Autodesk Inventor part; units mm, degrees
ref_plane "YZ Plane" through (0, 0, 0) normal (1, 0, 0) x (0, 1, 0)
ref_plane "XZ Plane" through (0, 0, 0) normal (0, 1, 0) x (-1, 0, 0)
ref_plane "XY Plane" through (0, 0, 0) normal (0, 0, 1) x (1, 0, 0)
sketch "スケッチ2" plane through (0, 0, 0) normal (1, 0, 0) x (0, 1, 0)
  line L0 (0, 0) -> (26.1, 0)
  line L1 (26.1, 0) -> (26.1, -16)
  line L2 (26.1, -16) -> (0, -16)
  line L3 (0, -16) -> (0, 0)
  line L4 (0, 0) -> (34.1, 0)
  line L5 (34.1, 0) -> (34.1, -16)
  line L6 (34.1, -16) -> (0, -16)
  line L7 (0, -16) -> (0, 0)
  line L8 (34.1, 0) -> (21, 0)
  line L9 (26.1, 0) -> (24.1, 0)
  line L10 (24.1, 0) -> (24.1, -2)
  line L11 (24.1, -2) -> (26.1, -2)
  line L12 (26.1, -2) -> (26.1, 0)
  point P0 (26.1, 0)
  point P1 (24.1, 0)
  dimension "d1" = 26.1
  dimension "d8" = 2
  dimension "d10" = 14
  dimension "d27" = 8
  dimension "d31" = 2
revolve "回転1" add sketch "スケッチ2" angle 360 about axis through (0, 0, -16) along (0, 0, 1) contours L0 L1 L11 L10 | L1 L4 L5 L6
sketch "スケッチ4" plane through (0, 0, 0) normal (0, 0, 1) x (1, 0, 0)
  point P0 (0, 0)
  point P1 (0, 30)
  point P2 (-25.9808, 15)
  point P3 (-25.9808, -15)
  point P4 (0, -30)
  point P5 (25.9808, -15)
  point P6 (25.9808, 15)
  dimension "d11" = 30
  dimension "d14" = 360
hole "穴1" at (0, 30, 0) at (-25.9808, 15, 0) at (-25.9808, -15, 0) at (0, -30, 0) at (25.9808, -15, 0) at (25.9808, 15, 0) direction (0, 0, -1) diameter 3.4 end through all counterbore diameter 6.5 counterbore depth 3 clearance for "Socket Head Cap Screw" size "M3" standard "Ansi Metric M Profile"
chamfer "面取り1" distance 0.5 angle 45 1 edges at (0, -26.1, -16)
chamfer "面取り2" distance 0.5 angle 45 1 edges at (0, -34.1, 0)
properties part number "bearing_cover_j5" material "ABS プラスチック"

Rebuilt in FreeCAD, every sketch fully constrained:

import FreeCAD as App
import Part
import Sketcher
from FreeCAD import Vector
Q = App.Units.Quantity


def edges_at(feature, points):
    """Names of the edges that pass closest to the given points."""
    edges = feature.Shape.Edges
    near = lambda p: min(range(len(edges)), key=lambda i: edges[i].distToShape(Part.Vertex(*p))[0])
    return sorted({f"Edge{near(p) + 1}" for p in points})

doc = App.newDocument("Part")
body = doc.addObject("PartDesign::Body", "Body")

# Sketch on YZ plane
sketch1 = body.newObject("Sketcher::SketchObject", "Sketch")
sketch1.AttachmentSupport = (doc.getObject("YZ_Plane"), [""])
sketch1.MapMode = "FlatFace"
sketch1.addGeometry(Part.LineSegment(Vector(24.1, 0, 0), Vector(24.1, -2, 0)), False)
sketch1.addGeometry(Part.LineSegment(Vector(24.1, -2, 0), Vector(26.1, -2, 0)), False)
sketch1.addGeometry(Part.LineSegment(Vector(26.1, -2, 0), Vector(26.1, -16, 0)), False)
sketch1.addGeometry(Part.LineSegment(Vector(26.1, -16, 0), Vector(34.1, -16, 0)), False)
sketch1.addGeometry(Part.LineSegment(Vector(34.1, -16, 0), Vector(34.1, 0, 0)), False)
sketch1.addGeometry(Part.LineSegment(Vector(34.1, 0, 0), Vector(24.1, 0, 0)), False)
sketch1.addConstraint(Sketcher.Constraint("Coincident", 0, 2, 1, 1))
sketch1.addConstraint(Sketcher.Constraint("Coincident", 1, 2, 2, 1))
sketch1.addConstraint(Sketcher.Constraint("Coincident", 2, 2, 3, 1))
sketch1.addConstraint(Sketcher.Constraint("Coincident", 3, 2, 4, 1))
sketch1.addConstraint(Sketcher.Constraint("Coincident", 4, 2, 5, 1))
sketch1.addConstraint(Sketcher.Constraint("Coincident", 5, 2, 0, 1))
sketch1.addConstraint(Sketcher.Constraint("Vertical", 0))
sketch1.addConstraint(Sketcher.Constraint("Horizontal", 1))
sketch1.addConstraint(Sketcher.Constraint("Vertical", 2))
sketch1.addConstraint(Sketcher.Constraint("Horizontal", 3))
sketch1.addConstraint(Sketcher.Constraint("Vertical", 4))
sketch1.addConstraint(Sketcher.Constraint("Horizontal", 5))
sketch1.addConstraint(Sketcher.Constraint("PointOnObject", 4, 2, -1))
sketch1.addConstraint(Sketcher.Constraint("Equal", 1, 0))
sketch1.addConstraint(Sketcher.Constraint("DistanceX", 1, 1, 1, 2, Q("2 mm")))
sketch1.addConstraint(Sketcher.Constraint("DistanceX", 3, 1, 3, 2, Q("8 mm")))
sketch1.addConstraint(Sketcher.Constraint("DistanceY", 2, 2, 2, 1, Q("14 mm")))
sketch1.addConstraint(Sketcher.Constraint("DistanceX", -1, 1, 1, 2, Q("26.1 mm")))
revolution = body.newObject("PartDesign::Revolution", "Revolution")
revolution.Profile = sketch1
revolution.ReferenceAxis = (sketch1, ["V_Axis"])
revolution.Angle = 360

# Sketch on XY plane
sketch2 = body.newObject("Sketcher::SketchObject", "Sketch001")
sketch2.AttachmentSupport = (doc.getObject("XY_Plane"), [""])
sketch2.MapMode = "FlatFace"
sketch2.addGeometry(Part.Circle(Vector(0, 30, 0), Vector(0, 0, 1), 1.7), False)
sketch2.addGeometry(Part.Circle(Vector(-26, 15, 0), Vector(0, 0, 1), 1.7), False)
sketch2.addGeometry(Part.Circle(Vector(-26, -15, 0), Vector(0, 0, 1), 1.7), False)
sketch2.addGeometry(Part.Circle(Vector(0, -30, 0), Vector(0, 0, 1), 1.7), False)
sketch2.addGeometry(Part.Circle(Vector(26, -15, 0), Vector(0, 0, 1), 1.7), False)
sketch2.addGeometry(Part.Circle(Vector(26, 15, 0), Vector(0, 0, 1), 1.7), False)
sketch2.addConstraint(Sketcher.Constraint("Equal", 0, 1))
sketch2.addConstraint(Sketcher.Constraint("Equal", 1, 2))
sketch2.addConstraint(Sketcher.Constraint("Equal", 2, 3))
sketch2.addConstraint(Sketcher.Constraint("Equal", 3, 4))
sketch2.addConstraint(Sketcher.Constraint("Equal", 4, 5))
sketch2.addConstraint(Sketcher.Constraint("Symmetric", 0, 3, 3, 3, -1, 1))
sketch2.addConstraint(Sketcher.Constraint("Symmetric", 1, 3, 4, 3, -1, 1))
sketch2.addConstraint(Sketcher.Constraint("Symmetric", 2, 3, 5, 3, -1, 1))
sketch2.addConstraint(Sketcher.Constraint("Symmetric", 2, 3, 4, 3, -2))
sketch2.addConstraint(Sketcher.Constraint("PointOnObject", 0, 3, -2))
sketch2.addConstraint(Sketcher.Constraint("Diameter", 0, Q("3.4 mm")))
sketch2.addConstraint(Sketcher.Constraint("DistanceY", -1, 1, 0, 3, Q("30 mm")))
sketch2.addConstraint(Sketcher.Constraint("DistanceY", -1, 1, 1, 3, Q("15 mm")))
sketch2.addConstraint(Sketcher.Constraint("DistanceX", 1, 3, -1, 1, Q("25.9808 mm")))
doc.recompute()
hole = body.newObject("PartDesign::Hole", "Hole")
hole.Profile = sketch2
hole.ThreadType = "None"
hole.Diameter = 3.4
hole.DepthType = "ThroughAll"
hole.HoleCutType = "Counterbore"
hole.HoleCutDiameter = 6.5
hole.HoleCutDepth = 3
doc.recompute()

chamfer = body.newObject("PartDesign::Chamfer", "Chamfer")
chamfer.Base = (hole, edges_at(hole, [(0, -26.1, -16)]))
chamfer.Size = 0.5
doc.recompute()

chamfer2 = body.newObject("PartDesign::Chamfer", "Chamfer001")
chamfer2.Base = (chamfer, edges_at(chamfer, [(0, -34.1, 0)]))
chamfer2.Size = 0.5

doc.recompute()
